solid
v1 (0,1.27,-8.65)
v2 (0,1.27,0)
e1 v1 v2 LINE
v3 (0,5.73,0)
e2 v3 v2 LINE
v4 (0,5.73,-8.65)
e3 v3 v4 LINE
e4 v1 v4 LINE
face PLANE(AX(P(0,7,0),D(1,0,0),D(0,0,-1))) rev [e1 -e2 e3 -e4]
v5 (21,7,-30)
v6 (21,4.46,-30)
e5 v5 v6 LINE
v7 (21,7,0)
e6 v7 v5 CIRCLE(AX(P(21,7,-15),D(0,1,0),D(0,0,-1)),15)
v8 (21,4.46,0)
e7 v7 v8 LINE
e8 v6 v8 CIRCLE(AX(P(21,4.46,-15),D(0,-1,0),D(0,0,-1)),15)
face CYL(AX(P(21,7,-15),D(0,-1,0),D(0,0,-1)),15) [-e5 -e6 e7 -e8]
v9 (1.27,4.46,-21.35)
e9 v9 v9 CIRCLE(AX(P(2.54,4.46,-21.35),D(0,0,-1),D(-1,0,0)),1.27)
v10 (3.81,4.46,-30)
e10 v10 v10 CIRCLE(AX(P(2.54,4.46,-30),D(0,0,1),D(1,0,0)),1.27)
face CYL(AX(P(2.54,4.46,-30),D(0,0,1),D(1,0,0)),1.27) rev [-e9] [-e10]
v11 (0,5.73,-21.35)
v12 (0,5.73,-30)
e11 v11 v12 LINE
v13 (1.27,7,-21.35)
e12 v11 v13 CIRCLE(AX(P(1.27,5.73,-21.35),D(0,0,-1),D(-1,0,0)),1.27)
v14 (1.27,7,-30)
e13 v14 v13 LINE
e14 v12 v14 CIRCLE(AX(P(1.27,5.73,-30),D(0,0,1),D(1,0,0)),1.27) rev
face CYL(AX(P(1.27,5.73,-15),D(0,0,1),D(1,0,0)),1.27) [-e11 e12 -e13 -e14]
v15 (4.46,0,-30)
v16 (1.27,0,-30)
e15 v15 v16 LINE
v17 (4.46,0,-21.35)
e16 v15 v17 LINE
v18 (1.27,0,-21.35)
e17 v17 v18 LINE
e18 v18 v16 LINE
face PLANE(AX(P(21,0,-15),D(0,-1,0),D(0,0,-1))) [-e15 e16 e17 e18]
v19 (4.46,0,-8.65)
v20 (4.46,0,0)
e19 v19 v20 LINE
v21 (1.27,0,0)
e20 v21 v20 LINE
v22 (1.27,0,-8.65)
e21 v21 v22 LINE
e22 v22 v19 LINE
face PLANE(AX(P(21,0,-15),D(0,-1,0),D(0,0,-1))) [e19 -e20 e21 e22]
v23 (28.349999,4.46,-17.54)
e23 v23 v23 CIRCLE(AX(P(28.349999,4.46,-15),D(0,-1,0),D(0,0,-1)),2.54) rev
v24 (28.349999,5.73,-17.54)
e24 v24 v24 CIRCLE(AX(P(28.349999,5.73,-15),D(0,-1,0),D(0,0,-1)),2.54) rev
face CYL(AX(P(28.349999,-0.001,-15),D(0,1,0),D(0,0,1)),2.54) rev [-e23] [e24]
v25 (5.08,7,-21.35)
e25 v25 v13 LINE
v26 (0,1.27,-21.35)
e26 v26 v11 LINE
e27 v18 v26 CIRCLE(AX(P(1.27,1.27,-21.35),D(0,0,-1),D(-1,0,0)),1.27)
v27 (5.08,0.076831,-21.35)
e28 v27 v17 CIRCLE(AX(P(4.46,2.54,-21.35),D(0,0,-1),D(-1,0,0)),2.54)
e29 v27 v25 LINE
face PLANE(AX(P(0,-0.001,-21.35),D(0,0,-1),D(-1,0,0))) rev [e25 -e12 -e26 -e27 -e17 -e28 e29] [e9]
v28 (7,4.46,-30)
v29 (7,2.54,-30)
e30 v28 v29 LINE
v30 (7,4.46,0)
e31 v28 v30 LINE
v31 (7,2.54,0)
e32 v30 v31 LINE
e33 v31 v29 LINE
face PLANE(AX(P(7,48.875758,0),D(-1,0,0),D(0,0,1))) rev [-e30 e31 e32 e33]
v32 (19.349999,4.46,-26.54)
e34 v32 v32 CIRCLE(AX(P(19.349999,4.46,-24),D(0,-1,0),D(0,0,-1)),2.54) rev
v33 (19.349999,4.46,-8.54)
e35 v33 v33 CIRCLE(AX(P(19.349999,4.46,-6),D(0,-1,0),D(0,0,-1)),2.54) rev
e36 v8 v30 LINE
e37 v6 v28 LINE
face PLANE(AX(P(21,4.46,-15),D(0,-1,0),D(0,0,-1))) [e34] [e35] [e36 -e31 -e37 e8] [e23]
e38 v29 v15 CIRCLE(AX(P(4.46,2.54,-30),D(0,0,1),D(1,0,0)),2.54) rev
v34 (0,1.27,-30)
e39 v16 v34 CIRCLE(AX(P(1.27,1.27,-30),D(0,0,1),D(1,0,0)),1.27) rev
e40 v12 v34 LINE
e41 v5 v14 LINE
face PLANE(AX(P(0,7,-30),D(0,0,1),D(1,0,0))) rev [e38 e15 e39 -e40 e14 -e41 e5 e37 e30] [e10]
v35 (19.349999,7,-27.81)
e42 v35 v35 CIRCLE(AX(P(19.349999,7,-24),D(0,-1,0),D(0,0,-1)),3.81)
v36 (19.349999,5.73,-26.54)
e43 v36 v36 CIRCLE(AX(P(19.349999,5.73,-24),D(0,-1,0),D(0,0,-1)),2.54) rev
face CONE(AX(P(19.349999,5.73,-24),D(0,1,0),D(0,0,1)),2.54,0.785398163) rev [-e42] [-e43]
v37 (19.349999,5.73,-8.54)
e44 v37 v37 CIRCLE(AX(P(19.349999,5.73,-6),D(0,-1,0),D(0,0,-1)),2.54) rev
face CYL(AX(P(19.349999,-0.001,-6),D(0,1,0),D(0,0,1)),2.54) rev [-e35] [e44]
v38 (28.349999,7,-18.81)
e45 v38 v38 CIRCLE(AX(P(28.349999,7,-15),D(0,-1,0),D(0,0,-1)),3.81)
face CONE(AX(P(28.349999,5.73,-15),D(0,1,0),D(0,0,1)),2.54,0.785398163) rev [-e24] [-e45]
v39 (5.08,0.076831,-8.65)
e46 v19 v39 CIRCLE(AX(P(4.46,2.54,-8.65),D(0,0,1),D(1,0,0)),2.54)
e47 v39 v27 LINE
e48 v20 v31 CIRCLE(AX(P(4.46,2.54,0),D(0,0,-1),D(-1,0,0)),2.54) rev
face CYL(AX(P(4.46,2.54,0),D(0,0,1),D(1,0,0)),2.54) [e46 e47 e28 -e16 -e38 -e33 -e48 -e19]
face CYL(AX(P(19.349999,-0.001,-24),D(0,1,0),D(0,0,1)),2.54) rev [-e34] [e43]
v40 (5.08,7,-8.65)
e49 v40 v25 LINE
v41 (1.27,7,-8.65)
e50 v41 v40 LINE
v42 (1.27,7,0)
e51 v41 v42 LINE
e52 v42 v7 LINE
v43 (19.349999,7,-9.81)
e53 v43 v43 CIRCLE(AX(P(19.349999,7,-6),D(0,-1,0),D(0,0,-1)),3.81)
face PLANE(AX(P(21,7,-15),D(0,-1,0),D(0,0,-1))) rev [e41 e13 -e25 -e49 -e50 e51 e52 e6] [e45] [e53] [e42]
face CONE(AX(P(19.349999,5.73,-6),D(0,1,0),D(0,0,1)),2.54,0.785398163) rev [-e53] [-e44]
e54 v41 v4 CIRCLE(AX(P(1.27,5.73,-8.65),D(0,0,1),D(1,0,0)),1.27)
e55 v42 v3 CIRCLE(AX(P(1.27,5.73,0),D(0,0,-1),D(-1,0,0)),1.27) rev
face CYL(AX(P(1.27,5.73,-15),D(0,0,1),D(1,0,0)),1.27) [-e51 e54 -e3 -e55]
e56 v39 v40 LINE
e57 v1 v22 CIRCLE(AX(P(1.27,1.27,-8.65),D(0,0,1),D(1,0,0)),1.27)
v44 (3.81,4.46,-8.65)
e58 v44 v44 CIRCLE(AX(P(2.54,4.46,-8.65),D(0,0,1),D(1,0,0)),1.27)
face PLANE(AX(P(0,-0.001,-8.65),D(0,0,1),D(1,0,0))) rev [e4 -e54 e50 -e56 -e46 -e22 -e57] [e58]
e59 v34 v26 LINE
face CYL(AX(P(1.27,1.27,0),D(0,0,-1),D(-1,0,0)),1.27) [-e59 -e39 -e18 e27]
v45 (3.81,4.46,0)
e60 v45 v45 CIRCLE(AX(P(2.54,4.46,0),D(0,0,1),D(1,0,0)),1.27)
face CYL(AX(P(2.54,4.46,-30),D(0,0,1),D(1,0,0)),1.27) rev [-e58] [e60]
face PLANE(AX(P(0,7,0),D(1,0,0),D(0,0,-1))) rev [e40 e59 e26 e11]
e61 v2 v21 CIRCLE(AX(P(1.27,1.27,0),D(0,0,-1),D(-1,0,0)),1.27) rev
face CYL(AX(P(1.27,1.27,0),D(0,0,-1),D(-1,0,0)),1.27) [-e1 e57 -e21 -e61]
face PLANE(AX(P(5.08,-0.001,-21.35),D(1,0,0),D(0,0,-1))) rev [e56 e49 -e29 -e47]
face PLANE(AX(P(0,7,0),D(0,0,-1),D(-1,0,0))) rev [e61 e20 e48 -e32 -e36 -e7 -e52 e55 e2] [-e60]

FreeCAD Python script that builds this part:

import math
import FreeCAD as App
import Part
import Sketcher
from FreeCAD import Vector
Q = App.Units.Quantity


def edges_at(feature, points):
    """Names of the edges that pass closest to the given points."""
    edges = feature.Shape.Edges
    near = lambda p: min(range(len(edges)), key=lambda i: edges[i].distToShape(Part.Vertex(*p))[0])
    return sorted({f"Edge{near(p) + 1}" for p in points})


def add_polygon(sketch, points):
    """Adds a closed chain of lines whose ends are joined by coincident constraints."""
    first, n = sketch.GeometryCount, len(points)
    for a, b in zip(points, points[1:] + points[:1]):
        sketch.addGeometry(Part.LineSegment(App.Vector(*a, 0), App.Vector(*b, 0)), False)
    for i in range(n):
        sketch.addConstraint(Sketcher.Constraint("Coincident", first + i, 2, first + (i + 1) % n, 1))

doc = App.newDocument("Part")
body = doc.addObject("PartDesign::Body", "Body")

# Sketch on XZ plane
sketch1 = doc.addObject("Sketcher::SketchObject", "Sketch")
body.addObject(sketch1)
sketch1.AttachmentSupport = (doc.XZ_Plane, [""])
sketch1.MapMode = "FlatFace"
sketch1.addGeometry(Part.LineSegment(Vector(0, 0, 0), Vector(21, 0, 0)), False)
sketch1.addGeometry(Part.ArcOfCircle(Part.Circle(Vector(21, -15, 0), Vector(0, 0, 1), 15), math.radians(-90), math.radians(90)), False)
sketch1.addGeometry(Part.LineSegment(Vector(21, -30, 0), Vector(0, -30, 0)), False)
sketch1.addGeometry(Part.LineSegment(Vector(0, -30, 0), Vector(0, 0, 0)), False)
sketch1.addConstraint(Sketcher.Constraint("Tangent", 0, 2, 1, 2))
sketch1.addConstraint(Sketcher.Constraint("Tangent", 1, 1, 2, 1))
sketch1.addConstraint(Sketcher.Constraint("Coincident", 2, 2, 3, 1))
sketch1.addConstraint(Sketcher.Constraint("Coincident", 3, 2, 0, 1))
sketch1.addConstraint(Sketcher.Constraint("Horizontal", 0))
sketch1.addConstraint(Sketcher.Constraint("Horizontal", 2))
sketch1.addConstraint(Sketcher.Constraint("Vertical", 3))
sketch1.addConstraint(Sketcher.Constraint("Coincident", 3, 2, -1, 1))
sketch1.addConstraint(Sketcher.Constraint("Radius", 1, Q("15 mm")))
sketch1.addConstraint(Sketcher.Constraint("DistanceX", 0, 1, 0, 2, Q("21 mm")))
pad1 = doc.addObject("PartDesign::Pad", "Pad")
body.addObject(pad1)
pad1.Profile = sketch1
pad1.Length = 7
pad1.Reversed = True

# Sketch on XZ plane
sketch2 = doc.addObject("Sketcher::SketchObject", "Sketch001")
body.addObject(sketch2)
sketch2.AttachmentSupport = (doc.XZ_Plane, [""])
sketch2.MapMode = "FlatFace"
add_polygon(sketch2, [(7, 0), (7, -30), (36.216077, -30), (36.216077, 0)])  # lines 0-3
sketch2.addConstraint(Sketcher.Constraint("Vertical", 0))
sketch2.addConstraint(Sketcher.Constraint("Horizontal", 1))
sketch2.addConstraint(Sketcher.Constraint("Vertical", 2))
sketch2.addConstraint(Sketcher.Constraint("Horizontal", 3))
sketch2.addConstraint(Sketcher.Constraint("PointOnObject", 2, 2, -1))
sketch2.addConstraint(Sketcher.Constraint("DistanceY", 0, 2, 0, 1, Q("30 mm")))
sketch2.addConstraint(Sketcher.Constraint("DistanceX", -1, 1, 0, 2, Q("7 mm")))
sketch2.addConstraint(Sketcher.Constraint("DistanceX", 1, 1, 1, 2, Q("29.216077 mm")))
pocket1 = doc.addObject("PartDesign::Pocket", "Pocket")
body.addObject(pocket1)
pocket1.Profile = sketch2
pocket1.Length = 4.46
doc.recompute()

fillet = doc.addObject("PartDesign::Fillet", "Fillet")
body.addObject(fillet)
fillet.Base = (pocket1, edges_at(pocket1, [(7, 0, -15)]))
fillet.Radius = 2.54
doc.recompute()

fillet2 = doc.addObject("PartDesign::Fillet", "Fillet001")
body.addObject(fillet2)
fillet2.Base = (fillet, edges_at(fillet, [(0, 7, -15), (0, 0, -15)]))
fillet2.Radius = 1.27

# Sketch on XZ plane
sketch3 = doc.addObject("Sketcher::SketchObject", "Sketch002")
body.addObject(sketch3)
sketch3.AttachmentSupport = (doc.XZ_Plane, [""])
sketch3.MapMode = "FlatFace"
sketch3.AttachmentOffset = App.Placement(Vector(0, 0, -7), App.Rotation())
sketch3.addGeometry(Part.Circle(Vector(28.349999, -15, 0), Vector(0, 0, 1), 2.54), False)
sketch3.addConstraint(Sketcher.Constraint("Diameter", 0, Q("5.08 mm")))
sketch3.addConstraint(Sketcher.Constraint("DistanceY", 0, 3, -1, 1, Q("15 mm")))
sketch3.addConstraint(Sketcher.Constraint("DistanceX", -1, 1, 0, 3, Q("28.349999 mm")))
pocket2 = doc.addObject("PartDesign::Pocket", "Pocket001")
body.addObject(pocket2)
pocket2.Profile = sketch3
pocket2.Type = "UpToFirst"
pocket2.Reversed = True

# Sketch on XZ plane
sketch4 = doc.addObject("Sketcher::SketchObject", "Sketch003")
body.addObject(sketch4)
sketch4.AttachmentSupport = (doc.XZ_Plane, [""])
sketch4.MapMode = "FlatFace"
sketch4.AttachmentOffset = App.Placement(Vector(0, 0, -7), App.Rotation())
sketch4.addGeometry(Part.Circle(Vector(19.349999, -24, 0), Vector(0, 0, 1), 2.54), False)
sketch4.addConstraint(Sketcher.Constraint("Diameter", 0, Q("5.08 mm")))
sketch4.addConstraint(Sketcher.Constraint("DistanceY", 0, 3, -1, 1, Q("24 mm")))
sketch4.addConstraint(Sketcher.Constraint("DistanceX", -1, 1, 0, 3, Q("19.349999 mm")))
pocket3 = doc.addObject("PartDesign::Pocket", "Pocket002")
body.addObject(pocket3)
pocket3.Profile = sketch4
pocket3.Type = "UpToFirst"
pocket3.Reversed = True

# Sketch on XZ plane
sketch5 = doc.addObject("Sketcher::SketchObject", "Sketch004")
body.addObject(sketch5)
sketch5.AttachmentSupport = (doc.XZ_Plane, [""])
sketch5.MapMode = "FlatFace"
sketch5.AttachmentOffset = App.Placement(Vector(0, 0, -7), App.Rotation())
sketch5.addGeometry(Part.Circle(Vector(19.349999, -6, 0), Vector(0, 0, 1), 2.54), False)
sketch5.addConstraint(Sketcher.Constraint("Diameter", 0, Q("5.08 mm")))
sketch5.addConstraint(Sketcher.Constraint("DistanceY", 0, 3, -1, 1, Q("6 mm")))
sketch5.addConstraint(Sketcher.Constraint("DistanceX", -1, 1, 0, 3, Q("19.349999 mm")))
pocket4 = doc.addObject("PartDesign::Pocket", "Pocket003")
body.addObject(pocket4)
pocket4.Profile = sketch5
pocket4.Type = "UpToFirst"
pocket4.Reversed = True

# Sketch on XZ plane
sketch6 = doc.addObject("Sketcher::SketchObject", "Sketch005")
body.addObject(sketch6)
sketch6.AttachmentSupport = (doc.XZ_Plane, [""])
sketch6.MapMode = "FlatFace"
sketch6.AttachmentOffset = App.Placement(Vector(0, 0, -7), App.Rotation())
add_polygon(sketch6, [(0, -21.35), (0, -8.65), (5.08, -8.65), (5.08, -21.35)])  # lines 0-3
sketch6.addConstraint(Sketcher.Constraint("Vertical", 0))
sketch6.addConstraint(Sketcher.Constraint("Horizontal", 1))
sketch6.addConstraint(Sketcher.Constraint("Vertical", 2))
sketch6.addConstraint(Sketcher.Constraint("Horizontal", 3))
sketch6.addConstraint(Sketcher.Constraint("PointOnObject", 0, 2, -2))
sketch6.addConstraint(Sketcher.Constraint("DistanceY", 0, 1, 0, 2, Q("12.7 mm")))
sketch6.addConstraint(Sketcher.Constraint("DistanceX", 1, 1, 1, 2, Q("5.08 mm")))
sketch6.addConstraint(Sketcher.Constraint("DistanceY", 0, 2, -1, 1, Q("8.65 mm")))
pocket5 = doc.addObject("PartDesign::Pocket", "Pocket004")
body.addObject(pocket5)
pocket5.Profile = sketch6
pocket5.Type = "UpToFirst"
pocket5.Reversed = True
doc.recompute()

chamfer = doc.addObject("PartDesign::Chamfer", "Chamfer")
body.addObject(chamfer)
chamfer.Base = (pocket5, edges_at(pocket5, [(25.81, 7, -15), (16.81, 7, -24), (16.81, 7, -6)]))
chamfer.Size = 1.27

# Sketch on XY plane
sketch7 = doc.addObject("Sketcher::SketchObject", "Sketch006")
body.addObject(sketch7)
sketch7.AttachmentSupport = (doc.XY_Plane, [""])
sketch7.MapMode = "FlatFace"
sketch7.addGeometry(Part.Circle(Vector(2.54, 4.46, 0), Vector(0, 0, 1), 1.27), False)
sketch7.addConstraint(Sketcher.Constraint("Diameter", 0, Q("2.54 mm")))
sketch7.addConstraint(Sketcher.Constraint("DistanceX", -1, 1, 0, 3, Q("2.54 mm")))
sketch7.addConstraint(Sketcher.Constraint("DistanceY", -1, 1, 0, 3, Q("4.46 mm")))
pocket6 = doc.addObject("PartDesign::Pocket", "Pocket005")
body.addObject(pocket6)
pocket6.Profile = sketch7
pocket6.Type = "ThroughAll"

doc.recompute()
